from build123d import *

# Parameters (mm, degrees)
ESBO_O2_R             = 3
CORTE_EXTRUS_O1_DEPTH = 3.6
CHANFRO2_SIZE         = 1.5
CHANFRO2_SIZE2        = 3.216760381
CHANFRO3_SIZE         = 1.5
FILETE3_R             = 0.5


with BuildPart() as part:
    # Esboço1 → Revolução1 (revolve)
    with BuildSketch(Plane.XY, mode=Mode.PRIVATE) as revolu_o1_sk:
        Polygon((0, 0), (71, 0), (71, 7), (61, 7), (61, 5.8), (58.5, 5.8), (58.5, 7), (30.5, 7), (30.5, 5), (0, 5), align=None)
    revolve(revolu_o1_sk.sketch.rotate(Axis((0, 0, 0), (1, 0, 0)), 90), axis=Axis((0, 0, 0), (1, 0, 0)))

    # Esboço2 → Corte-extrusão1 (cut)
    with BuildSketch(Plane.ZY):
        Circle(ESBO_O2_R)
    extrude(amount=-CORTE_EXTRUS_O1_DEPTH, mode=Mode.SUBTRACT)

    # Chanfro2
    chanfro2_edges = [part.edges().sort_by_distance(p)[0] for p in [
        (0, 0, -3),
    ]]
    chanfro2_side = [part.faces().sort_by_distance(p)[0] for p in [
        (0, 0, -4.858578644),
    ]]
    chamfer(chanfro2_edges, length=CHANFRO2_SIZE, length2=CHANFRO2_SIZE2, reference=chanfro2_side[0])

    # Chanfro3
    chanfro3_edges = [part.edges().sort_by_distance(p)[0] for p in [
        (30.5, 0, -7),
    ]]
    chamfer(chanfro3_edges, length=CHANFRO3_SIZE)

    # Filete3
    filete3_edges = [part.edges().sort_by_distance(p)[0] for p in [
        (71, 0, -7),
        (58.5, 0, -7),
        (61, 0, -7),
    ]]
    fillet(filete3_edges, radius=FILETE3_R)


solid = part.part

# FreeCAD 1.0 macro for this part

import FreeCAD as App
import Part
import Sketcher
Q = App.Units.Quantity


def edges_at(feature, points):
    """Names of the edges that pass closest to the given points."""
    edges = feature.Shape.Edges
    near = lambda p: min(range(len(edges)), key=lambda i: edges[i].distToShape(Part.Vertex(*p))[0])
    return sorted({f"Edge{near(p) + 1}" for p in points})

doc = App.newDocument("Part")
body = doc.addObject("PartDesign::Body", "Body")

# Sketch on XY plane
sketch1 = body.newObject("Sketcher::SketchObject", "Sketch")
sketch1.AttachmentSupport = (doc.getObject("XY_Plane"), [""])
sketch1.MapMode = "FlatFace"
sketch1.addGeometry([
    Part.LineSegment(App.Vector(0, 0, 0), App.Vector(71, 0, 0)),  # 0
    Part.LineSegment(App.Vector(71, 0, 0), App.Vector(71, 7, 0)),  # 1
    Part.LineSegment(App.Vector(71, 7, 0), App.Vector(61, 7, 0)),  # 2
    Part.LineSegment(App.Vector(61, 7, 0), App.Vector(61, 5.8, 0)),  # 3
    Part.LineSegment(App.Vector(61, 5.8, 0), App.Vector(58.5, 5.8, 0)),  # 4
    Part.LineSegment(App.Vector(58.5, 5.8, 0), App.Vector(58.5, 7, 0)),  # 5
    Part.LineSegment(App.Vector(58.5, 7, 0), App.Vector(30.5, 7, 0)),  # 6
    Part.LineSegment(App.Vector(30.5, 7, 0), App.Vector(30.5, 5, 0)),  # 7
    Part.LineSegment(App.Vector(30.5, 5, 0), App.Vector(0, 5, 0)),  # 8
    Part.LineSegment(App.Vector(0, 5, 0), App.Vector(0, 0, 0)),  # 9
], False)
sketch1.addConstraint([
    Sketcher.Constraint("Coincident", 0, 2, 1, 1),
    Sketcher.Constraint("Coincident", 1, 2, 2, 1),
    Sketcher.Constraint("Coincident", 2, 2, 3, 1),
    Sketcher.Constraint("Coincident", 3, 2, 4, 1),
    Sketcher.Constraint("Coincident", 4, 2, 5, 1),
    Sketcher.Constraint("Coincident", 5, 2, 6, 1),
    Sketcher.Constraint("Coincident", 6, 2, 7, 1),
    Sketcher.Constraint("Coincident", 7, 2, 8, 1),
    Sketcher.Constraint("Coincident", 8, 2, 9, 1),
    Sketcher.Constraint("Coincident", 9, 2, 0, 1),
    Sketcher.Constraint("Horizontal", 0),
    Sketcher.Constraint("Vertical", 1),
    Sketcher.Constraint("Horizontal", 2),
    Sketcher.Constraint("Vertical", 3),
    Sketcher.Constraint("Horizontal", 4),
    Sketcher.Constraint("Vertical", 5),
    Sketcher.Constraint("Horizontal", 6),
    Sketcher.Constraint("Vertical", 7),
    Sketcher.Constraint("Horizontal", 8),
    Sketcher.Constraint("Vertical", 9),
    Sketcher.Constraint("Coincident", 9, 2, -1, 1),
    Sketcher.Constraint("Horizontal", 2, 2, 5, 2),
    Sketcher.Constraint("DistanceX", 0, 1, 0, 2, Q("71 mm")),
    Sketcher.Constraint("DistanceX", 2, 2, 2, 1, Q("10 mm")),
    Sketcher.Constraint("DistanceX", 6, 2, 6, 1, Q("28 mm")),
    Sketcher.Constraint("DistanceY", 1, 1, 1, 2, Q("7 mm")),
    Sketcher.Constraint("DistanceY", 7, 2, 7, 1, Q("2 mm")),
    Sketcher.Constraint("DistanceX", 4, 2, 4, 1, Q("2.5 mm")),
    Sketcher.Constraint("DistanceY", 3, 2, 3, 1, Q("1.2 mm")),
])
revolution = body.newObject("PartDesign::Revolution", "Revolution")
revolution.Profile = sketch1
revolution.ReferenceAxis = (sketch1, ["H_Axis"])
revolution.Angle = 360

# Sketch on YZ plane
sketch2 = body.newObject("Sketcher::SketchObject", "Sketch001")
sketch2.AttachmentSupport = (doc.getObject("YZ_Plane"), [""])
sketch2.MapMode = "FlatFace"
sketch2.addGeometry(Part.Circle(App.Vector(0, 0, 0), App.Vector(0, 0, 1), 3), False)
sketch2.addConstraint([
    Sketcher.Constraint("Coincident", 0, 3, -1, 1),
    Sketcher.Constraint("Diameter", 0, Q("6 mm")),
])
pocket1 = body.newObject("PartDesign::Pocket", "Pocket")
pocket1.Profile = sketch2
pocket1.Length = 3.6
pocket1.Reversed = True
doc.recompute()

chamfer = body.newObject("PartDesign::Chamfer", "Chamfer")
chamfer.Base = (pocket1, edges_at(pocket1, [(0, 0, -3)]))
chamfer.ChamferType = "Two distances"
chamfer.Size = 1.5
chamfer.Size2 = 3.21676
doc.recompute()

chamfer2 = body.newObject("PartDesign::Chamfer", "Chamfer001")
chamfer2.Base = (chamfer, edges_at(chamfer, [(30.5, 0, -7)]))
chamfer2.Size = 1.5
doc.recompute()

fillet = body.newObject("PartDesign::Fillet", "Fillet")
fillet.Base = (chamfer2, edges_at(chamfer2, [(71, 0, -7), (58.5, 0, -7), (61, 0, -7)]))
fillet.Radius = 0.5

doc.recompute()
